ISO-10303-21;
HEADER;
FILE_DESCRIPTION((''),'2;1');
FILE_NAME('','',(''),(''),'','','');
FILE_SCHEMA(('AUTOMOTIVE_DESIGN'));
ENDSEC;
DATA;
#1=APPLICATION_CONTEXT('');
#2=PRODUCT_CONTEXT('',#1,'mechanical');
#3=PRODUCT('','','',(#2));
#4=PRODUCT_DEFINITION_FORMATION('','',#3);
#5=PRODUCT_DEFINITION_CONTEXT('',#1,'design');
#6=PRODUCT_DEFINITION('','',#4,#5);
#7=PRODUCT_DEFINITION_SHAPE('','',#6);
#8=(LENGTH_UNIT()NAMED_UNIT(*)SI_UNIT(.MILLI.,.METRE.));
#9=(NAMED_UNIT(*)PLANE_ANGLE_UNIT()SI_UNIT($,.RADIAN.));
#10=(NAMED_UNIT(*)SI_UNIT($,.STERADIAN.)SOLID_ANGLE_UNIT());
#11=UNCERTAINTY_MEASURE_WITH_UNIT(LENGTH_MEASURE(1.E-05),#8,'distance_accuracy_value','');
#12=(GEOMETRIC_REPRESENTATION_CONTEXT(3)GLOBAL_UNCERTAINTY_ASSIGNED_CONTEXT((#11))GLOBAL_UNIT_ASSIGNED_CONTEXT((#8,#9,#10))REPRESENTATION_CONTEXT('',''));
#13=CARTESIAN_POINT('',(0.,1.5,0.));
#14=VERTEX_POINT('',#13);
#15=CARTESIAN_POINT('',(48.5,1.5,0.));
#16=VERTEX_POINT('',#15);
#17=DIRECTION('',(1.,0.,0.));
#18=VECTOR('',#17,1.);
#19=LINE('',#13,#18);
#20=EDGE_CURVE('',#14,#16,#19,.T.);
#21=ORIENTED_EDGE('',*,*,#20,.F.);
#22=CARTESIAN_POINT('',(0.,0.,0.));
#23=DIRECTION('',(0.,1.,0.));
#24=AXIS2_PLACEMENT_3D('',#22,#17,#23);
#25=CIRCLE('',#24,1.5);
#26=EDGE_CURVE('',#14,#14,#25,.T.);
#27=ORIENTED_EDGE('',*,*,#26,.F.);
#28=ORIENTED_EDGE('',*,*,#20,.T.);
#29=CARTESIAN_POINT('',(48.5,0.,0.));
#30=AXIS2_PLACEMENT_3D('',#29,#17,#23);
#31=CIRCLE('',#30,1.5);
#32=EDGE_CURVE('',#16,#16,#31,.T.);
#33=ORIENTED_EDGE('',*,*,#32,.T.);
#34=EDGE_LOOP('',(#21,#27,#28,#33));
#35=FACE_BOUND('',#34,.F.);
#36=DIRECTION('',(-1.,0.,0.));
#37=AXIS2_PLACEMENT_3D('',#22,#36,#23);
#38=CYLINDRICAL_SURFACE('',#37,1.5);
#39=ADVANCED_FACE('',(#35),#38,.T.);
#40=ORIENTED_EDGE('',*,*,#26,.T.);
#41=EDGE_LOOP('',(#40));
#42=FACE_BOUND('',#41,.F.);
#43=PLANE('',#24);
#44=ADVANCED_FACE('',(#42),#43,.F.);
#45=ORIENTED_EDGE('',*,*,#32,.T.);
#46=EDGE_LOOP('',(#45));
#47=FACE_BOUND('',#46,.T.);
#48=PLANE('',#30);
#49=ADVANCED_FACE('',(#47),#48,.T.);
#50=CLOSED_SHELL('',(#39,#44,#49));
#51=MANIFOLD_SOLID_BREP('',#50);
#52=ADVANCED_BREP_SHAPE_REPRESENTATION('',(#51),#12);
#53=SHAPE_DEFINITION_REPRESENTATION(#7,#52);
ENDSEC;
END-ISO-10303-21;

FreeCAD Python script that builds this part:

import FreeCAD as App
import Part
import Sketcher

doc = App.newDocument("Part")
body = doc.addObject("PartDesign::Body", "Body")

# Sketch on YZ plane
sketch1 = doc.addObject("Sketcher::SketchObject", "Sketch")
body.addObject(sketch1)
sketch1.AttachmentSupport = (doc.YZ_Plane, [""])
sketch1.MapMode = "FlatFace"
sketch1.addGeometry(Part.Circle(App.Vector(0, 0, 0), App.Vector(0, 0, 1), 1.5), False)
sketch1.addConstraint(Sketcher.Constraint("Coincident", 0, 3, -1, 1))
sketch1.addConstraint(Sketcher.Constraint("Diameter", 0, 3.0))
pad1 = doc.addObject("PartDesign::Pad", "Pad")
body.addObject(pad1)
pad1.Profile = sketch1
pad1.Length = 48.5

doc.recompute()
